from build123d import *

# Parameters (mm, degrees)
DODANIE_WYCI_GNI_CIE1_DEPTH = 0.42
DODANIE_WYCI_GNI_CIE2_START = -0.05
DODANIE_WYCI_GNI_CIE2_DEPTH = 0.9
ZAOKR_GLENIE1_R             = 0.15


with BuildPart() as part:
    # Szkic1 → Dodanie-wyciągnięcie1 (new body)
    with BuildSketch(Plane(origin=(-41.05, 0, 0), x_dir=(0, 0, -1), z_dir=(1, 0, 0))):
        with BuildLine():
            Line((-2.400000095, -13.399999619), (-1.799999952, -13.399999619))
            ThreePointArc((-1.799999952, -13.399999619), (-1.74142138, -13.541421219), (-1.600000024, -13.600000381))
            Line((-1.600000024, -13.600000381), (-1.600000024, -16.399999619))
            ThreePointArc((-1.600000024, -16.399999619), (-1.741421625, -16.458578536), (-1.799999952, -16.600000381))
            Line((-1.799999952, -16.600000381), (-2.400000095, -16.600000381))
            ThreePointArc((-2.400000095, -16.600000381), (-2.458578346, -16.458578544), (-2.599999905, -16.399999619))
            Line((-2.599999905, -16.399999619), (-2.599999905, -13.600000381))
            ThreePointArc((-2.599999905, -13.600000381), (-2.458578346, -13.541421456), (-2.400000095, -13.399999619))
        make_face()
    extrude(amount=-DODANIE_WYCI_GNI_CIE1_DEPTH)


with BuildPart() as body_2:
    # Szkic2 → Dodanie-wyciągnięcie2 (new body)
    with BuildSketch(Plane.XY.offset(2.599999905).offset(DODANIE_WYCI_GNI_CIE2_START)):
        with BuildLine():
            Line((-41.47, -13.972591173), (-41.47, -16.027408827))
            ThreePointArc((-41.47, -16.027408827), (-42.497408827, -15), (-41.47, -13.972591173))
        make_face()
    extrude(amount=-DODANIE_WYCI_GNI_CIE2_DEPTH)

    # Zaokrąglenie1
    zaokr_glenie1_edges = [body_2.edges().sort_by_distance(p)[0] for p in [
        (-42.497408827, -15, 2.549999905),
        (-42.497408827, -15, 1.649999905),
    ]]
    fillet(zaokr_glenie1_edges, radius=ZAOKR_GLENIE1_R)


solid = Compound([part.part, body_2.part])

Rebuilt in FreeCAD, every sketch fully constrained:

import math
import FreeCAD as App
import Part
import Sketcher
from FreeCAD import Vector


def edges_at(feature, points):
    """Names of the edges that pass closest to the given points."""
    edges = feature.Shape.Edges
    near = lambda p: min(range(len(edges)), key=lambda i: edges[i].distToShape(Part.Vertex(*p))[0])
    return sorted({f"Edge{near(p) + 1}" for p in points})

doc = App.newDocument("Part")
body = doc.addObject("PartDesign::Body", "Body")

sketch1 = body.newObject("Sketcher::SketchObject", "Sketch")
sketch1.AttachmentSupport = (doc.getObject("YZ_Plane"), [""])
sketch1.MapMode = "FlatFace"
sketch1.AttachmentOffset = App.Placement(Vector(0, 0, -41.05), App.Rotation())
sketch1.addGeometry([
    Part.LineSegment(Vector(-13.4, 1.8, 0), Vector(-13.4, 2.4, 0)),
    Part.ArcOfCircle(Part.Circle(Vector(-13.4, 2.6, 0), Vector(0, 0, 1), 0.2), math.radians(180), math.radians(270)),
    Part.LineSegment(Vector(-13.6, 2.6, 0), Vector(-16.4, 2.6, 0)),
    Part.ArcOfCircle(Part.Circle(Vector(-16.6, 2.6, 0), Vector(0, 0, 1), 0.2), math.radians(-90), math.radians(0)),
    Part.LineSegment(Vector(-16.6, 2.4, 0), Vector(-16.6, 1.8, 0)),
    Part.ArcOfCircle(Part.Circle(Vector(-16.6, 1.6, 0), Vector(0, 0, 1), 0.2), math.radians(0), math.radians(90)),
    Part.LineSegment(Vector(-16.4, 1.6, 0), Vector(-13.6, 1.6, 0)),
    Part.ArcOfCircle(Part.Circle(Vector(-13.4, 1.6, 0), Vector(0, 0, 1), 0.2), math.radians(90), math.radians(180)),
], False)
sketch1.addConstraint([
    Sketcher.Constraint("Coincident", 0, 2, 1, 2),
    Sketcher.Constraint("Coincident", 1, 1, 2, 1),
    Sketcher.Constraint("Coincident", 2, 2, 3, 2),
    Sketcher.Constraint("Coincident", 3, 1, 4, 1),
    Sketcher.Constraint("Coincident", 4, 2, 5, 2),
    Sketcher.Constraint("Coincident", 5, 1, 6, 1),
    Sketcher.Constraint("Coincident", 6, 2, 7, 2),
    Sketcher.Constraint("Coincident", 7, 1, 0, 1),
    Sketcher.Constraint("Vertical", 0),
    Sketcher.Constraint("Horizontal", 2),
    Sketcher.Constraint("Vertical", 4),
    Sketcher.Constraint("Horizontal", 6),
    Sketcher.Constraint("Equal", 1, 3),
    Sketcher.Constraint("Equal", 3, 5),
    Sketcher.Constraint("Equal", 5, 7),
    Sketcher.Constraint("Horizontal", 1, 3, 3, 3),
    Sketcher.Constraint("Horizontal", 5, 3, 7, 3),
    Sketcher.Constraint("Horizontal", 3, 3, 1, 1),
    Sketcher.Constraint("Horizontal", 7, 3, 5, 1),
    Sketcher.Constraint("Vertical", 3, 3, 5, 3),
    Sketcher.Constraint("Vertical", 1, 3, 7, 3),
    Sketcher.Constraint("Vertical", 7, 3, 0, 2),
    Sketcher.Constraint("Vertical", 5, 3, 3, 1),
    Sketcher.Constraint("Radius", 1, 0.2),
    Sketcher.Constraint("DistanceX", 2, 2, 2, 1, 2.799999),
    Sketcher.Constraint("DistanceY", 0, 1, 0, 2, 0.6),
    Sketcher.Constraint("DistanceX", 1, 3, -1, 1, 13.400001),
    Sketcher.Constraint("DistanceY", -1, 1, 1, 3, 2.6),
])
pad1 = body.newObject("PartDesign::Pad", "Pad")
pad1.Profile = sketch1
pad1.Length = 0.42
pad1.Reversed = True
body2 = doc.addObject("PartDesign::Body", "Body001")

sketch2 = body2.newObject("Sketcher::SketchObject", "Sketch001")
sketch2.AttachmentSupport = (doc.getObject("XY_Plane001"), [""])
sketch2.MapMode = "FlatFace"
sketch2.AttachmentOffset = App.Placement(Vector(0, 0, 2.55), App.Rotation())
sketch2.addGeometry([
    Part.LineSegment(Vector(-41.5, -16, 0), Vector(-41.5, -14, 0)),
    Part.ArcOfCircle(Part.Circle(Vector(-41.5, -15, 0), Vector(0, 0, 1), 1), math.radians(90), math.radians(270)),
], False)
sketch2.addConstraint([
    Sketcher.Constraint("Coincident", 0, 1, 1, 2),
    Sketcher.Constraint("Coincident", 1, 1, 0, 2),
    Sketcher.Constraint("Vertical", 0),
    Sketcher.Constraint("Vertical", 1, 3, 0, 1),
    Sketcher.Constraint("DistanceY", 1, 3, -1, 1, 15.0),
    Sketcher.Constraint("DistanceX", 1, 3, -1, 1, 41.47),
    Sketcher.Constraint("Radius", 1, 1.027409),
])
pad2 = body2.newObject("PartDesign::Pad", "Pad001")
pad2.Profile = sketch2
pad2.Length = 0.9
pad2.Reversed = True
doc.recompute()

fillet = body2.newObject("PartDesign::Fillet", "Fillet")
fillet.Base = (pad2, edges_at(pad2, [(-42.497, -15, 2.55), (-42.497, -15, 1.65)]))
fillet.Radius = 0.15

doc.recompute()
